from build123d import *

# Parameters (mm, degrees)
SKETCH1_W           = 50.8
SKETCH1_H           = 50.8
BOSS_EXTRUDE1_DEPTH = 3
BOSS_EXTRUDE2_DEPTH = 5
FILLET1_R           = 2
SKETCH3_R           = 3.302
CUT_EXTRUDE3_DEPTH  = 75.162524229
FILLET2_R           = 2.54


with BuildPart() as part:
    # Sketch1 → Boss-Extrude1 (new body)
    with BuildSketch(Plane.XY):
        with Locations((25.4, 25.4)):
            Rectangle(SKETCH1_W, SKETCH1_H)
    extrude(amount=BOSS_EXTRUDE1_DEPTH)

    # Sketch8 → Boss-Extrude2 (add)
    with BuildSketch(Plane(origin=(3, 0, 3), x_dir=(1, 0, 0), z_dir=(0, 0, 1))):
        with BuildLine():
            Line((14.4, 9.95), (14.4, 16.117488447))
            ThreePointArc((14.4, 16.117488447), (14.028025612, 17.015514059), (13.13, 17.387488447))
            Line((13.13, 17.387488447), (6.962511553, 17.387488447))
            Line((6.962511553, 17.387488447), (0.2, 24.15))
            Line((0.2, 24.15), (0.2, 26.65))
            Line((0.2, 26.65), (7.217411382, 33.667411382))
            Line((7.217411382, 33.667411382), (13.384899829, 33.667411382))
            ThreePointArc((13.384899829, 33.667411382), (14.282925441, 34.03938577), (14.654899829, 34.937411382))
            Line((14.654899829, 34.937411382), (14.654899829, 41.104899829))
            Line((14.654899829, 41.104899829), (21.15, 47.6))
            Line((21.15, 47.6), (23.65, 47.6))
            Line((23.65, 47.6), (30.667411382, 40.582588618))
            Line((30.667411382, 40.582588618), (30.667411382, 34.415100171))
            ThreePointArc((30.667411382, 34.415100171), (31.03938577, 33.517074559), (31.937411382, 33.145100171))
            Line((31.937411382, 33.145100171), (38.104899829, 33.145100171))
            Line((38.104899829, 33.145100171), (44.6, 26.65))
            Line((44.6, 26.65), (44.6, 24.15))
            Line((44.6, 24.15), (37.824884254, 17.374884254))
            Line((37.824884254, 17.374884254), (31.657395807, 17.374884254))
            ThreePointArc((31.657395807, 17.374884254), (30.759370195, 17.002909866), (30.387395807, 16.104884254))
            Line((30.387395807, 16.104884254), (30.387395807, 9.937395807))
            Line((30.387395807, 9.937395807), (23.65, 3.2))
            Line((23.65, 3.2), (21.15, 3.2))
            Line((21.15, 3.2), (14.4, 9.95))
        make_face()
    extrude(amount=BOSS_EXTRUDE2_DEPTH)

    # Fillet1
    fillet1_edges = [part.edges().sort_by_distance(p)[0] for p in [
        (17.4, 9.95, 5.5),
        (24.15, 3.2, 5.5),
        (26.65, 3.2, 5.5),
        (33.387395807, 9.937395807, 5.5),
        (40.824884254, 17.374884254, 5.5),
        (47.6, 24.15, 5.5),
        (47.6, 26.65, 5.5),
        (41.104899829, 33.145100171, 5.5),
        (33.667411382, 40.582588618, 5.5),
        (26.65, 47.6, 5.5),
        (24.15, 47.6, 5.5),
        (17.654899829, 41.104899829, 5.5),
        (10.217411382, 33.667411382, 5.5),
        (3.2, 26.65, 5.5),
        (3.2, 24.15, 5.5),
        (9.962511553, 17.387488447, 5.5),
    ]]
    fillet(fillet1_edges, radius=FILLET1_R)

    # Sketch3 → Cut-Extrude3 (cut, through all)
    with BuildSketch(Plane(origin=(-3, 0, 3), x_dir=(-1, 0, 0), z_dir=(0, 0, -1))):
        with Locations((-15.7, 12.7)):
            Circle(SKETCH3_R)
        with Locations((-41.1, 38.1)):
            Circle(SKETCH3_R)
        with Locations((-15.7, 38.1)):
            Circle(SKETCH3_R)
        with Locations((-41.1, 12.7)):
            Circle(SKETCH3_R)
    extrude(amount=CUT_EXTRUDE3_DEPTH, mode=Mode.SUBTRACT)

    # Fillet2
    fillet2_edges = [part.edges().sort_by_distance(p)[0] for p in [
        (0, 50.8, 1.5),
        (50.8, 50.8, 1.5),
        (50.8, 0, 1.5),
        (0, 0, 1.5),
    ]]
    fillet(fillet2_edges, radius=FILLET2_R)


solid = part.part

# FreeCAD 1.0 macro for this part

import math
import FreeCAD as App
import Part
import Sketcher
Q = App.Units.Quantity


def edges_at(feature, points):
    """Names of the edges that pass closest to the given points."""
    edges = feature.Shape.Edges
    near = lambda p: min(range(len(edges)), key=lambda i: edges[i].distToShape(Part.Vertex(*p))[0])
    return sorted({f"Edge{near(p) + 1}" for p in points})

doc = App.newDocument("Part")
params = doc.addObject("Spreadsheet::Sheet", "Params")
for row, (alias, value) in enumerate([
    ("sketch1_width", "50.8 mm"),
    ("pad1_length", "3 mm"),
    ("sketch2_radius", "1.27 mm"),
    ("sketch2_width", "2.5 mm"),
    ("pad2_length", "5 mm"),
    ("fillet_radius", "2 mm"),
    ("fillet2_radius", "2.54 mm"),
], start=1):
    params.set(f"A{row}", alias)
    params.set(f"B{row}", "=" + value)
    params.setAlias(f"B{row}", alias)

body = doc.addObject("PartDesign::Body", "Body")

sketch1 = body.newObject("Sketcher::SketchObject", "Sketch")
sketch1.AttachmentSupport = (doc.getObject("XY_Plane"), [""])
sketch1.MapMode = "FlatFace"
sketch1.addGeometry(Part.LineSegment(App.Vector(0, 50.8, 0), App.Vector(0, 0, 0)), False)
sketch1.addGeometry(Part.LineSegment(App.Vector(0, 0, 0), App.Vector(50.8, 0, 0)), False)
sketch1.addGeometry(Part.LineSegment(App.Vector(50.8, 0, 0), App.Vector(50.8, 50.8, 0)), False)
sketch1.addGeometry(Part.LineSegment(App.Vector(50.8, 50.8, 0), App.Vector(0, 50.8, 0)), False)
sketch1.addConstraint(Sketcher.Constraint("Coincident", 0, 2, 1, 1))
sketch1.addConstraint(Sketcher.Constraint("Coincident", 1, 2, 2, 1))
sketch1.addConstraint(Sketcher.Constraint("Coincident", 2, 2, 3, 1))
sketch1.addConstraint(Sketcher.Constraint("Coincident", 3, 2, 0, 1))
sketch1.addConstraint(Sketcher.Constraint("Vertical", 0))
sketch1.addConstraint(Sketcher.Constraint("Horizontal", 1))
sketch1.addConstraint(Sketcher.Constraint("Vertical", 2))
sketch1.addConstraint(Sketcher.Constraint("Horizontal", 3))
sketch1.addConstraint(Sketcher.Constraint("Coincident", 0, 2, -1, 1))
sketch1.addConstraint(Sketcher.Constraint("Equal", 3, 0))
sketch1.addConstraint(Sketcher.Constraint("DistanceX", 1, 1, 1, 2, Q("50.8 mm")))
sketch1.setExpression("Constraints[10]", "Params.sketch1_width")
pad1 = body.newObject("PartDesign::Pad", "Pad")
pad1.Profile = sketch1
pad1.setExpression("Length", "Params.pad1_length")

sketch2 = body.newObject("Sketcher::SketchObject", "Sketch001")
sketch2.AttachmentSupport = (doc.getObject("XY_Plane"), [""])
sketch2.MapMode = "FlatFace"
sketch2.AttachmentOffset = App.Placement(App.Vector(0, 0, 3), App.Rotation())
sketch2.addGeometry(Part.LineSegment(App.Vector(17.4, 16.117488, 0), App.Vector(17.4, 9.95, 0)), False)
sketch2.addGeometry(Part.LineSegment(App.Vector(17.4, 9.95, 0), App.Vector(24.15, 3.2, 0)), False)
sketch2.addGeometry(Part.LineSegment(App.Vector(24.15, 3.2, 0), App.Vector(26.65, 3.2, 0)), False)
sketch2.addGeometry(Part.LineSegment(App.Vector(26.65, 3.2, 0), App.Vector(33.387396, 9.937396, 0)), False)
sketch2.addGeometry(Part.LineSegment(App.Vector(33.387396, 9.937396, 0), App.Vector(33.387396, 16.104884, 0)), False)
sketch2.addGeometry(Part.ArcOfCircle(Part.Circle(App.Vector(34.657396, 16.104884, 0), App.Vector(0, 0, 1), 1.27), math.radians(90), math.radians(180)), False)
sketch2.addGeometry(Part.LineSegment(App.Vector(34.657396, 17.374884, 0), App.Vector(40.824884, 17.374884, 0)), False)
sketch2.addGeometry(Part.LineSegment(App.Vector(40.824884, 17.374884, 0), App.Vector(47.6, 24.15, 0)), False)
sketch2.addGeometry(Part.LineSegment(App.Vector(47.6, 24.15, 0), App.Vector(47.6, 26.65, 0)), False)
sketch2.addGeometry(Part.LineSegment(App.Vector(47.6, 26.65, 0), App.Vector(41.1049, 33.1451, 0)), False)
sketch2.addGeometry(Part.LineSegment(App.Vector(41.1049, 33.1451, 0), App.Vector(34.937411, 33.1451, 0)), False)
sketch2.addGeometry(Part.ArcOfCircle(Part.Circle(App.Vector(34.937411, 34.4151, 0), App.Vector(0, 0, 1), 1.27), math.radians(180), math.radians(270)), False)
sketch2.addGeometry(Part.LineSegment(App.Vector(33.667411, 34.4151, 0), App.Vector(33.667411, 40.582589, 0)), False)
sketch2.addGeometry(Part.LineSegment(App.Vector(33.667411, 40.582589, 0), App.Vector(26.65, 47.6, 0)), False)
sketch2.addGeometry(Part.LineSegment(App.Vector(26.65, 47.6, 0), App.Vector(24.15, 47.6, 0)), False)
sketch2.addGeometry(Part.LineSegment(App.Vector(24.15, 47.6, 0), App.Vector(17.6549, 41.1049, 0)), False)
sketch2.addGeometry(Part.LineSegment(App.Vector(17.6549, 41.1049, 0), App.Vector(17.6549, 34.937411, 0)), False)
sketch2.addGeometry(Part.ArcOfCircle(Part.Circle(App.Vector(16.3849, 34.937411, 0), App.Vector(0, 0, 1), 1.27), math.radians(-90), math.radians(0)), False)
sketch2.addGeometry(Part.LineSegment(App.Vector(16.3849, 33.667411, 0), App.Vector(10.217411, 33.667411, 0)), False)
sketch2.addGeometry(Part.LineSegment(App.Vector(10.217411, 33.667411, 0), App.Vector(3.2, 26.65, 0)), False)
sketch2.addGeometry(Part.LineSegment(App.Vector(3.2, 26.65, 0), App.Vector(3.2, 24.15, 0)), False)
sketch2.addGeometry(Part.LineSegment(App.Vector(3.2, 24.15, 0), App.Vector(9.962512, 17.387488, 0)), False)
sketch2.addGeometry(Part.LineSegment(App.Vector(9.962512, 17.387488, 0), App.Vector(16.13, 17.387488, 0)), False)
sketch2.addGeometry(Part.ArcOfCircle(Part.Circle(App.Vector(16.13, 16.117488, 0), App.Vector(0, 0, 1), 1.27), math.radians(0), math.radians(90)), False)
sketch2.addConstraint(Sketcher.Constraint("Coincident", 0, 2, 1, 1))
sketch2.addConstraint(Sketcher.Constraint("Coincident", 1, 2, 2, 1))
sketch2.addConstraint(Sketcher.Constraint("Coincident", 2, 2, 3, 1))
sketch2.addConstraint(Sketcher.Constraint("Coincident", 3, 2, 4, 1))
sketch2.addConstraint(Sketcher.Constraint("Tangent", 4, 2, 5, 2))
sketch2.addConstraint(Sketcher.Constraint("Tangent", 5, 1, 6, 1))
sketch2.addConstraint(Sketcher.Constraint("Coincident", 6, 2, 7, 1))
sketch2.addConstraint(Sketcher.Constraint("Coincident", 7, 2, 8, 1))
sketch2.addConstraint(Sketcher.Constraint("Coincident", 8, 2, 9, 1))
sketch2.addConstraint(Sketcher.Constraint("Coincident", 9, 2, 10, 1))
sketch2.addConstraint(Sketcher.Constraint("Tangent", 10, 2, 11, 2))
sketch2.addConstraint(Sketcher.Constraint("Tangent", 11, 1, 12, 1))
sketch2.addConstraint(Sketcher.Constraint("Coincident", 12, 2, 13, 1))
sketch2.addConstraint(Sketcher.Constraint("Coincident", 13, 2, 14, 1))
sketch2.addConstraint(Sketcher.Constraint("Coincident", 14, 2, 15, 1))
sketch2.addConstraint(Sketcher.Constraint("Coincident", 15, 2, 16, 1))
sketch2.addConstraint(Sketcher.Constraint("Tangent", 16, 2, 17, 2))
sketch2.addConstraint(Sketcher.Constraint("Tangent", 17, 1, 18, 1))
sketch2.addConstraint(Sketcher.Constraint("Coincident", 18, 2, 19, 1))
sketch2.addConstraint(Sketcher.Constraint("Coincident", 19, 2, 20, 1))
sketch2.addConstraint(Sketcher.Constraint("Coincident", 20, 2, 21, 1))
sketch2.addConstraint(Sketcher.Constraint("Coincident", 21, 2, 22, 1))
sketch2.addConstraint(Sketcher.Constraint("Tangent", 22, 2, 23, 2))
sketch2.addConstraint(Sketcher.Constraint("Tangent", 23, 1, 0, 1))
sketch2.addConstraint(Sketcher.Constraint("Vertical", 0))
sketch2.addConstraint(Sketcher.Constraint("Horizontal", 2))
sketch2.addConstraint(Sketcher.Constraint("Vertical", 4))
sketch2.addConstraint(Sketcher.Constraint("Horizontal", 6))
sketch2.addConstraint(Sketcher.Constraint("Vertical", 8))
sketch2.addConstraint(Sketcher.Constraint("Horizontal", 10))
sketch2.addConstraint(Sketcher.Constraint("Vertical", 12))
sketch2.addConstraint(Sketcher.Constraint("Horizontal", 14))
sketch2.addConstraint(Sketcher.Constraint("Vertical", 16))
sketch2.addConstraint(Sketcher.Constraint("Horizontal", 18))
sketch2.addConstraint(Sketcher.Constraint("Vertical", 20))
sketch2.addConstraint(Sketcher.Constraint("Horizontal", 22))
sketch2.addConstraint(Sketcher.Constraint("Equal", 5, 11))
sketch2.addConstraint(Sketcher.Constraint("Equal", 11, 17))
sketch2.addConstraint(Sketcher.Constraint("Equal", 17, 23))
sketch2.addConstraint(Sketcher.Constraint("Perpendicular", 1, 3))
sketch2.addConstraint(Sketcher.Constraint("Parallel", 3, 7))
sketch2.addConstraint(Sketcher.Constraint("Perpendicular", 7, 9))
sketch2.addConstraint(Sketcher.Constraint("Parallel", 9, 13))
sketch2.addConstraint(Sketcher.Constraint("Perpendicular", 13, 15))
sketch2.addConstraint(Sketcher.Constraint("Parallel", 15, 19))
sketch2.addConstraint(Sketcher.Constraint("Perpendicular", 19, 21))
sketch2.addConstraint(Sketcher.Constraint("Horizontal", 8, 2, 19, 2))
sketch2.addConstraint(Sketcher.Constraint("Horizontal", 7, 2, 20, 2))
sketch2.addConstraint(Sketcher.Constraint("Vertical", 2, 2, 13, 2))
sketch2.addConstraint(Sketcher.Constraint("Vertical", 1, 2, 14, 2))
sketch2.addConstraint(Sketcher.Constraint("Equal", 6, 10))
sketch2.addConstraint(Sketcher.Constraint("Equal", 10, 18))
sketch2.addConstraint(Sketcher.Constraint("Equal", 18, 22))
sketch2.addConstraint(Sketcher.Constraint("Equal", 22, 0))
sketch2.addConstraint(Sketcher.Constraint("Equal", 0, 4))
sketch2.addConstraint(Sketcher.Constraint("Equal", 14, 8))
sketch2.addConstraint(Sketcher.Constraint("Equal", 4, 12))
sketch2.addConstraint(Sketcher.Constraint("Equal", 12, 16))
sketch2.addConstraint(Sketcher.Constraint("Equal", 9, 15))
sketch2.addConstraint(Sketcher.Constraint("Radius", 5, Q("1.27 mm")))
sketch2.addConstraint(Sketcher.Constraint("DistanceX", 2, 1, 2, 2, Q("2.5 mm")))
sketch2.addConstraint(Sketcher.Constraint("DistanceX", -1, 1, 0, 2, Q("17.4 mm")))
sketch2.addConstraint(Sketcher.Constraint("DistanceY", -1, 1, 1, 2, Q("3.2 mm")))
sketch2.addConstraint(Sketcher.Constraint("DistanceX", -1, 1, 7, 2, Q("47.6 mm")))
sketch2.addConstraint(Sketcher.Constraint("DistanceY", -1, 1, 13, 2, Q("47.6 mm")))
sketch2.addConstraint(Sketcher.Constraint("DistanceX", 6, 1, 6, 2, Q("6.167488 mm")))
sketch2.addConstraint(Sketcher.Constraint("DistanceY", -1, 1, 11, 3, Q("34.4151 mm")))
sketch2.addConstraint(Sketcher.Constraint("Distance", 7, Q("9.581461 mm")))
sketch2.setExpression("Constraints[59]", "Params.sketch2_radius")
sketch2.setExpression("Constraints[60]", "Params.sketch2_width")
pad2 = body.newObject("PartDesign::Pad", "Pad001")
pad2.Profile = sketch2
pad2.setExpression("Length", "Params.pad2_length")
doc.recompute()

fillet = body.newObject("PartDesign::Fillet", "Fillet")
fillet.Base = (pad2, edges_at(pad2, [
    (17.4, 9.95, 5.5),
    (24.15, 3.2, 5.5),
    (26.65, 3.2, 5.5),
    (33.387, 9.937, 5.5),
    (40.825, 17.375, 5.5),
    (47.6, 24.15, 5.5),
    (47.6, 26.65, 5.5),
    (41.105, 33.145, 5.5),
    (33.667, 40.583, 5.5),
    (26.65, 47.6, 5.5),
    (24.15, 47.6, 5.5),
    (17.655, 41.105, 5.5),
    (10.217, 33.667, 5.5),
    (3.2, 26.65, 5.5),
    (3.2, 24.15, 5.5),
    (9.963, 17.387, 5.5),
]))
fillet.setExpression("Radius", "Params.fillet_radius")

sketch3 = body.newObject("Sketcher::SketchObject", "Sketch002")
sketch3.AttachmentSupport = (doc.getObject("XY_Plane"), [""])
sketch3.MapMode = "FlatFace"
sketch3.AttachmentOffset = App.Placement(App.Vector(0, 0, 3), App.Rotation())
sketch3.addGeometry(Part.Circle(App.Vector(12.7, 12.7, 0), App.Vector(0, 0, 1), 3.302), False)
sketch3.addGeometry(Part.Circle(App.Vector(38.1, 38.1, 0), App.Vector(0, 0, 1), 3.302), False)
sketch3.addGeometry(Part.Circle(App.Vector(12.7, 38.1, 0), App.Vector(0, 0, 1), 3.302), False)
sketch3.addGeometry(Part.Circle(App.Vector(38.1, 12.7, 0), App.Vector(0, 0, 1), 3.302), False)
sketch3.addConstraint(Sketcher.Constraint("Equal", 0, 1))
sketch3.addConstraint(Sketcher.Constraint("Equal", 1, 2))
sketch3.addConstraint(Sketcher.Constraint("Equal", 2, 3))
sketch3.addConstraint(Sketcher.Constraint("Horizontal", 1, 3, 2, 3))
sketch3.addConstraint(Sketcher.Constraint("Horizontal", 0, 3, 3, 3))
sketch3.addConstraint(Sketcher.Constraint("Vertical", 0, 3, 2, 3))
sketch3.addConstraint(Sketcher.Constraint("Vertical", 1, 3, 3, 3))
sketch3.addConstraint(Sketcher.Constraint("Diameter", 0, Q("6.604 mm")))
sketch3.addConstraint(Sketcher.Constraint("DistanceX", -1, 1, 0, 3, Q("12.7 mm")))
sketch3.addConstraint(Sketcher.Constraint("DistanceY", -1, 1, 0, 3, Q("12.7 mm")))
sketch3.addConstraint(Sketcher.Constraint("DistanceX", -1, 1, 1, 3, Q("38.1 mm")))
sketch3.addConstraint(Sketcher.Constraint("DistanceY", -1, 1, 1, 3, Q("38.1 mm")))
pocket1 = body.newObject("PartDesign::Pocket", "Pocket")
pocket1.Profile = sketch3
pocket1.Type = "ThroughAll"
doc.recompute()

fillet2 = body.newObject("PartDesign::Fillet", "Fillet001")
fillet2.Base = (pocket1, edges_at(pocket1, [
    (0, 50.8, 1.5),
    (50.8, 50.8, 1.5),
    (50.8, 0, 1.5),
    (0, 0, 1.5),
]))
fillet2.setExpression("Radius", "Params.fillet2_radius")

doc.recompute()
